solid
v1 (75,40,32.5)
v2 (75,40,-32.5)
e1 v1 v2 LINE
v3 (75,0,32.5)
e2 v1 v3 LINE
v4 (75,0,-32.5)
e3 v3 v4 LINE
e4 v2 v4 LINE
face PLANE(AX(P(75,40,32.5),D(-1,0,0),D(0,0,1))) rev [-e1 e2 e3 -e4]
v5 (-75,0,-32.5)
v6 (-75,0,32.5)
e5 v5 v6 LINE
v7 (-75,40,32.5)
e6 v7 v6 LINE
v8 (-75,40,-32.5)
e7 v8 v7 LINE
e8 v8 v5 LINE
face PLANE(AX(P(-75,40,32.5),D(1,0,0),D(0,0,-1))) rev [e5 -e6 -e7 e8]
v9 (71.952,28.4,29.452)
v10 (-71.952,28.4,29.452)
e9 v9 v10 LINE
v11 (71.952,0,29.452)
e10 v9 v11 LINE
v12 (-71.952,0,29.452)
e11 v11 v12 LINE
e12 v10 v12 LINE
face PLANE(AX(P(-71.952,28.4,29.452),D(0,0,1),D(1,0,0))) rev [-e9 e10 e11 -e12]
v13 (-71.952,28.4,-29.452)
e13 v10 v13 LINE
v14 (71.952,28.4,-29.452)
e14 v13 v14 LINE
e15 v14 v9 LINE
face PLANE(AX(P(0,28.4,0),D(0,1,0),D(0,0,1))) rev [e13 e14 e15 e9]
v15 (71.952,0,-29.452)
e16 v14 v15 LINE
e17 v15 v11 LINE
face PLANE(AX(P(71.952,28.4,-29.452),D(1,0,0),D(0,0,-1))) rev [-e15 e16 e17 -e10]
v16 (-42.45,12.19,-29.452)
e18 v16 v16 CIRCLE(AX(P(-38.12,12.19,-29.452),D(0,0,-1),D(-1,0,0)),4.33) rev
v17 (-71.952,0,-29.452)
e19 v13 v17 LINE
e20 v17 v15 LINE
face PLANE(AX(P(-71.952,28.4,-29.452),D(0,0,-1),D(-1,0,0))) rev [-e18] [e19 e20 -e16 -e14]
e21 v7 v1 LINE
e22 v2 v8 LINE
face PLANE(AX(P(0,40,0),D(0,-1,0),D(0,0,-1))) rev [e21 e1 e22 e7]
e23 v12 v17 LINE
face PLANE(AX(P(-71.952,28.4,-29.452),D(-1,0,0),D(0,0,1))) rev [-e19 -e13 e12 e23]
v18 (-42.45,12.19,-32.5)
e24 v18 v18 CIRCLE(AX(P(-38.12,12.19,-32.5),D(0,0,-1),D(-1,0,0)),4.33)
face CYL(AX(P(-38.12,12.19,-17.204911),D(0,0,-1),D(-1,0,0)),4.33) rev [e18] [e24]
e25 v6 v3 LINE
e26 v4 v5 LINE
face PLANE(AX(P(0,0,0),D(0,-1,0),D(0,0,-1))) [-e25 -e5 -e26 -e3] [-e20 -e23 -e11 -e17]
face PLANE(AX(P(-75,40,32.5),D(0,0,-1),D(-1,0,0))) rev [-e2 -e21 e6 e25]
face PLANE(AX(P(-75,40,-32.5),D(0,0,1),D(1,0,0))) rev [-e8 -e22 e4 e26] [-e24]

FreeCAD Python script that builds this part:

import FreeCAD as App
import Part
import Sketcher


def add_polygon(sketch, points):
    """Adds a closed chain of lines whose ends are joined by coincident constraints."""
    first, n = sketch.GeometryCount, len(points)
    for a, b in zip(points, points[1:] + points[:1]):
        sketch.addGeometry(Part.LineSegment(App.Vector(*a, 0), App.Vector(*b, 0)), False)
    for i in range(n):
        sketch.addConstraint(Sketcher.Constraint("Coincident", first + i, 2, first + (i + 1) % n, 1))

doc = App.newDocument("Part")
body = doc.addObject("PartDesign::Body", "Body")

sketch1 = body.newObject("Sketcher::SketchObject", "Sketch")
sketch1.AttachmentSupport = (doc.getObject("XZ_Plane"), [""])
sketch1.MapMode = "FlatFace"
add_polygon(sketch1, [(-75, -32.5), (-75, 32.5), (75, 32.5), (75, -32.5)])
sketch1.addConstraint([
    Sketcher.Constraint("Vertical", 0),
    Sketcher.Constraint("Horizontal", 1),
    Sketcher.Constraint("Vertical", 2),
    Sketcher.Constraint("Horizontal", 3),
    Sketcher.Constraint("Symmetric", 0, 2, 2, 2, -1, 1),
    Sketcher.Constraint("DistanceX", 1, 1, 1, 2, 150.0),
    Sketcher.Constraint("DistanceY", 0, 1, 0, 2, 65.0),
])
pad1 = body.newObject("PartDesign::Pad", "Pad")
pad1.Profile = sketch1
pad1.Length = 40
pad1.Reversed = True

sketch2 = body.newObject("Sketcher::SketchObject", "Sketch001")
sketch2.AttachmentSupport = (doc.getObject("XZ_Plane"), [""])
sketch2.MapMode = "FlatFace"
add_polygon(sketch2, [(-71.952, 29.452), (-71.952, -29.452), (71.952, -29.452), (71.952, 29.452)])
sketch2.addConstraint([
    Sketcher.Constraint("Vertical", 0),
    Sketcher.Constraint("Horizontal", 1),
    Sketcher.Constraint("Vertical", 2),
    Sketcher.Constraint("Horizontal", 3),
    Sketcher.Constraint("Symmetric", 0, 2, 2, 2, -1, 1),
    Sketcher.Constraint("DistanceX", 1, 1, 1, 2, 143.904),
    Sketcher.Constraint("DistanceY", 0, 2, 0, 1, 58.904),
])
pocket1 = body.newObject("PartDesign::Pocket", "Pocket")
pocket1.Profile = sketch2
pocket1.Length = 28.4

sketch3 = body.newObject("Sketcher::SketchObject", "Sketch002")
sketch3.AttachmentSupport = (doc.getObject("XY_Plane"), [""])
sketch3.MapMode = "FlatFace"
sketch3.AttachmentOffset = App.Placement(App.Vector(0, 0, -32.5), App.Rotation())
sketch3.addGeometry(Part.Circle(App.Vector(-38.12, 12.19, 0), App.Vector(0, 0, 1), 4.33), False)
sketch3.addConstraint([
    Sketcher.Constraint("Diameter", 0, 8.66),
    Sketcher.Constraint("DistanceX", 0, 3, -1, 1, 38.12),
    Sketcher.Constraint("DistanceY", -1, 1, 0, 3, 12.19),
])
pocket2 = body.newObject("PartDesign::Pocket", "Pocket001")
pocket2.Profile = sketch3
pocket2.Length = 3.048
pocket2.Reversed = True

doc.recompute()
